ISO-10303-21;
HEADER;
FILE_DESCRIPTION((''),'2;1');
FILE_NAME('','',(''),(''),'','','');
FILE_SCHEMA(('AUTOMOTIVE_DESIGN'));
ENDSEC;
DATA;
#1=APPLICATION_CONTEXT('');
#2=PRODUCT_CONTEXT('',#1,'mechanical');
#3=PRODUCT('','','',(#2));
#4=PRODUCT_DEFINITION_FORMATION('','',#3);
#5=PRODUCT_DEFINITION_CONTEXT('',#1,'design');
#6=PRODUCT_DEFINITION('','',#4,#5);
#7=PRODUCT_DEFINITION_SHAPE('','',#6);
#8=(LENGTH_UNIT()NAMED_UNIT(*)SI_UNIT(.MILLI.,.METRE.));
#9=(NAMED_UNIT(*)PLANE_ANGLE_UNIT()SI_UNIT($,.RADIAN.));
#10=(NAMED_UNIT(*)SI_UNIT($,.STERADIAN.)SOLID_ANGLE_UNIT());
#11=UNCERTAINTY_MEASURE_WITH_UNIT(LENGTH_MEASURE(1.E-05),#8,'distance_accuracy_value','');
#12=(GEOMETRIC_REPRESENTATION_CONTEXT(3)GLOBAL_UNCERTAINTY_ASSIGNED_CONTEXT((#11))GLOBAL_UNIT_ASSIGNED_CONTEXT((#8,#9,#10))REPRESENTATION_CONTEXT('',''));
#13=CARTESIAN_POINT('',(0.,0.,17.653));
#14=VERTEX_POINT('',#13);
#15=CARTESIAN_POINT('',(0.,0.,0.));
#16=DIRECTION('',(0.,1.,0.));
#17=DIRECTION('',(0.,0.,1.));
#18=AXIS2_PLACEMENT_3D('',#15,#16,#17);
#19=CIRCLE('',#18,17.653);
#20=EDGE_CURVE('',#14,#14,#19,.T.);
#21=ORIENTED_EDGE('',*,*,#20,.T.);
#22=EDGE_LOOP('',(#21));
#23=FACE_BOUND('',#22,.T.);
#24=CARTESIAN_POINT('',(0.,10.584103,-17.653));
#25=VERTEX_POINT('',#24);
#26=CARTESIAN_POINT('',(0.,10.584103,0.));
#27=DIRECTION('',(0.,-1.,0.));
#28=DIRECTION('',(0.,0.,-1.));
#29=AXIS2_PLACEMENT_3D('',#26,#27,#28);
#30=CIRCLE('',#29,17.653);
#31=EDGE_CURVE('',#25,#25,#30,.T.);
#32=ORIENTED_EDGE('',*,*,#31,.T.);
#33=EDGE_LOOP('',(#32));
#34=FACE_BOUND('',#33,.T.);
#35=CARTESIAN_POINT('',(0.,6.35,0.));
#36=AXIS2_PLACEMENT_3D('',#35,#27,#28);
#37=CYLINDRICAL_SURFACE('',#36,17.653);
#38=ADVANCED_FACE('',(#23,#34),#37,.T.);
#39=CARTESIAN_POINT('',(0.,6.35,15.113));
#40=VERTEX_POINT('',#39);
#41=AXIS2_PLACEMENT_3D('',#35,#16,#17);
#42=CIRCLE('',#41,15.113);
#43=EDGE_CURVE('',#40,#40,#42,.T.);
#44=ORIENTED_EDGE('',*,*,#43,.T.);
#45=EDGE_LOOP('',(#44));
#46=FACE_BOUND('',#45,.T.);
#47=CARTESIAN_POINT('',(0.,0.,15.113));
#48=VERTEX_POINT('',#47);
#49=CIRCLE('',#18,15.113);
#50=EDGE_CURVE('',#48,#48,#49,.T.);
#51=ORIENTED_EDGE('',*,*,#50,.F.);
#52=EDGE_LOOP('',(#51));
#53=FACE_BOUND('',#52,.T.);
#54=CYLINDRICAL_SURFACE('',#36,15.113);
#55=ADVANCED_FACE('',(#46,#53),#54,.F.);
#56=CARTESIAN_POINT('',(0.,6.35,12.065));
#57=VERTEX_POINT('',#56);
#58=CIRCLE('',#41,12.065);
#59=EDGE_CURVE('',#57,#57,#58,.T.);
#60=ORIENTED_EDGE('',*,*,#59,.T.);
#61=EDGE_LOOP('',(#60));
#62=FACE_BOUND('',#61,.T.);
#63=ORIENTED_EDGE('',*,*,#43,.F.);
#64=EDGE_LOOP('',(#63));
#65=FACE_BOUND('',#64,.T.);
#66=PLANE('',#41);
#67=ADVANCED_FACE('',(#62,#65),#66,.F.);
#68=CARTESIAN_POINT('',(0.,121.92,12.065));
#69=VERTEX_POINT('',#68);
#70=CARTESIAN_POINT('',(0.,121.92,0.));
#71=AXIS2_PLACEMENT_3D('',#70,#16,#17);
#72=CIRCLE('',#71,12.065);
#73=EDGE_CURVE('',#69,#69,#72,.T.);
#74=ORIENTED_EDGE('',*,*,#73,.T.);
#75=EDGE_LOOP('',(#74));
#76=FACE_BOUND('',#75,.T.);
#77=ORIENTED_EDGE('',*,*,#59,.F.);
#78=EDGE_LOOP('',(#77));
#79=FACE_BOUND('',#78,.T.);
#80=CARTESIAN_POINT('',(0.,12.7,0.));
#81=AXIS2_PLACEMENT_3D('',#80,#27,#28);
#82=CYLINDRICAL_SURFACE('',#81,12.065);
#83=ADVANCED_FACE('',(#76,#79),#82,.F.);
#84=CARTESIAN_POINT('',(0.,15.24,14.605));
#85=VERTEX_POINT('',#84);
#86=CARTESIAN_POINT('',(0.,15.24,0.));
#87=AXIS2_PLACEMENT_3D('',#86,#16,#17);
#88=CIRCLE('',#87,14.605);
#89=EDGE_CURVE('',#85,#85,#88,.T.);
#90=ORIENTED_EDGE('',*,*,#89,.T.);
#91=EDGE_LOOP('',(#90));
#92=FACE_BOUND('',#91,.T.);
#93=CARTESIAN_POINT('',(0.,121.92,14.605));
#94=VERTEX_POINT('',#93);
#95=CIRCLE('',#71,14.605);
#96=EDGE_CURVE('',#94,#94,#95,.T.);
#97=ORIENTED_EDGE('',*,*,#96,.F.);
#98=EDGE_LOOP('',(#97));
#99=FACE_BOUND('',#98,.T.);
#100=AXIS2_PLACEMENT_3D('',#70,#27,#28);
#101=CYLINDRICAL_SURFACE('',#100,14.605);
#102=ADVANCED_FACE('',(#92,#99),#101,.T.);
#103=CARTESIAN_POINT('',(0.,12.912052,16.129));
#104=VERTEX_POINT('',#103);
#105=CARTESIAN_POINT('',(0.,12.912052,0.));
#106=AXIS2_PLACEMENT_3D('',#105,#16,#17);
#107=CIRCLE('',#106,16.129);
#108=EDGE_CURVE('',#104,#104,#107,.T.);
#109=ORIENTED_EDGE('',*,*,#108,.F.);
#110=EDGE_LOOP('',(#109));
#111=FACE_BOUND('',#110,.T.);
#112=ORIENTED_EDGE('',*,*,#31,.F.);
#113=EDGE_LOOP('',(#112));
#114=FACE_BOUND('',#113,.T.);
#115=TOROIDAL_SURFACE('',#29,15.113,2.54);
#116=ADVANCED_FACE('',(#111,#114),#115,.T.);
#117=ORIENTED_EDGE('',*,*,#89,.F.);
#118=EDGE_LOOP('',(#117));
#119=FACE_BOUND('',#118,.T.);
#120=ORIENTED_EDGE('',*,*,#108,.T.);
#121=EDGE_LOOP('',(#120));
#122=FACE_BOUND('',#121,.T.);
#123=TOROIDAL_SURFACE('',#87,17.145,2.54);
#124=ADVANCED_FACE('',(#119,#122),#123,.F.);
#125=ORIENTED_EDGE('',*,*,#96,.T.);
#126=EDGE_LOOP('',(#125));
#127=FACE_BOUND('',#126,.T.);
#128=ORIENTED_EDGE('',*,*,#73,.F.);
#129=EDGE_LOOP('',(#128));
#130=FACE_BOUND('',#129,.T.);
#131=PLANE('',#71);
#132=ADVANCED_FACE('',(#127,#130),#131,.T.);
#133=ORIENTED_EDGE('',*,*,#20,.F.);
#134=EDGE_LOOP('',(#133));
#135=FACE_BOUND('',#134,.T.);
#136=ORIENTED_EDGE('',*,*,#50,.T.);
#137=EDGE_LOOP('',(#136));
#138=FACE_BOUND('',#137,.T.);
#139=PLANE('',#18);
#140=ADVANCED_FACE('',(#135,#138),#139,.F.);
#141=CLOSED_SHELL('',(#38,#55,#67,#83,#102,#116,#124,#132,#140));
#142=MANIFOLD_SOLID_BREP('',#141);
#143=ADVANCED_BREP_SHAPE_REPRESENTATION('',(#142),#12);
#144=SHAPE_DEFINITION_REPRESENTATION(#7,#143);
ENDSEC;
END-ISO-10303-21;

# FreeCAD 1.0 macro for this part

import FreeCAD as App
import Part
import Sketcher
Q = App.Units.Quantity


def edges_at(feature, points):
    """Names of the edges that pass closest to the given points."""
    edges = feature.Shape.Edges
    near = lambda p: min(range(len(edges)), key=lambda i: edges[i].distToShape(Part.Vertex(*p))[0])
    return sorted({f"Edge{near(p) + 1}" for p in points})

doc = App.newDocument("Part")
body = doc.addObject("PartDesign::Body", "Body")

# Sketch on XZ plane
sketch1 = body.newObject("Sketcher::SketchObject", "Sketch")
sketch1.AttachmentSupport = (doc.getObject("XZ_Plane"), [""])
sketch1.MapMode = "FlatFace"
sketch1.addGeometry(Part.Circle(App.Vector(0, 0, 0), App.Vector(0, 0, 1), 18), False)
sketch1.addGeometry(Part.Circle(App.Vector(0, 0, 0), App.Vector(0, 0, 1), 15), False)
sketch1.addConstraint(Sketcher.Constraint("Coincident", 0, 3, -1, 1))
sketch1.addConstraint(Sketcher.Constraint("Coincident", 1, 3, -1, 1))
sketch1.addConstraint(Sketcher.Constraint("Diameter", 0, Q("1.39 in")))
sketch1.addConstraint(Sketcher.Constraint("Diameter", 1, Q("1.19 in")))
pad1 = body.newObject("PartDesign::Pad", "Pad")
pad1.Profile = sketch1
pad1.Length = Q("0.25 in")
pad1.Reversed = True

# Sketch on XZ plane
sketch2 = body.newObject("Sketcher::SketchObject", "Sketch001")
sketch2.AttachmentSupport = (doc.getObject("XZ_Plane"), [""])
sketch2.MapMode = "FlatFace"
sketch2.AttachmentOffset = App.Placement(App.Vector(0, 0, -0.25 * 25.4), App.Rotation())
sketch2.addGeometry(Part.Circle(App.Vector(0, 0, 0), App.Vector(0, 0, 1), 18), False)
sketch2.addGeometry(Part.Circle(App.Vector(0, 0, 0), App.Vector(0, 0, 1), 12), False)
sketch2.addConstraint(Sketcher.Constraint("Coincident", 0, 3, -1, 1))
sketch2.addConstraint(Sketcher.Constraint("Coincident", 1, 3, -1, 1))
sketch2.addConstraint(Sketcher.Constraint("Diameter", 0, Q("1.39 in")))
sketch2.addConstraint(Sketcher.Constraint("Diameter", 1, Q("0.95 in")))
pad2 = body.newObject("PartDesign::Pad", "Pad001")
pad2.Profile = sketch2
pad2.Length = Q("0.25 in")
pad2.Reversed = True

# Sketch on XZ plane
sketch3 = body.newObject("Sketcher::SketchObject", "Sketch002")
sketch3.AttachmentSupport = (doc.getObject("XZ_Plane"), [""])
sketch3.MapMode = "FlatFace"
sketch3.AttachmentOffset = App.Placement(App.Vector(0, 0, -0.5 * 25.4), App.Rotation())
sketch3.addGeometry(Part.Circle(App.Vector(0, 0, 0), App.Vector(0, 0, 1), 15), False)
sketch3.addGeometry(Part.Circle(App.Vector(0, 0, 0), App.Vector(0, 0, 1), 12), False)
sketch3.addConstraint(Sketcher.Constraint("Coincident", 0, 3, -1, 1))
sketch3.addConstraint(Sketcher.Constraint("Coincident", 1, 3, -1, 1))
sketch3.addConstraint(Sketcher.Constraint("Diameter", 0, Q("1.15 in")))
sketch3.addConstraint(Sketcher.Constraint("Diameter", 1, Q("0.95 in")))
pad3 = body.newObject("PartDesign::Pad", "Pad002")
pad3.Profile = sketch3
pad3.Length = Q("4.3 in")
pad3.Reversed = True
doc.recompute()

fillet = body.newObject("PartDesign::Fillet", "Fillet")
fillet.Base = (pad3, edges_at(pad3, [(0, 12.7, -14.605)]))
fillet.Radius = Q("0.1 in")
doc.recompute()

fillet2 = body.newObject("PartDesign::Fillet", "Fillet001")
fillet2.Base = (fillet, edges_at(fillet, [(0, 12.7, -17.653)]))
fillet2.Radius = Q("0.1 in")

doc.recompute()
